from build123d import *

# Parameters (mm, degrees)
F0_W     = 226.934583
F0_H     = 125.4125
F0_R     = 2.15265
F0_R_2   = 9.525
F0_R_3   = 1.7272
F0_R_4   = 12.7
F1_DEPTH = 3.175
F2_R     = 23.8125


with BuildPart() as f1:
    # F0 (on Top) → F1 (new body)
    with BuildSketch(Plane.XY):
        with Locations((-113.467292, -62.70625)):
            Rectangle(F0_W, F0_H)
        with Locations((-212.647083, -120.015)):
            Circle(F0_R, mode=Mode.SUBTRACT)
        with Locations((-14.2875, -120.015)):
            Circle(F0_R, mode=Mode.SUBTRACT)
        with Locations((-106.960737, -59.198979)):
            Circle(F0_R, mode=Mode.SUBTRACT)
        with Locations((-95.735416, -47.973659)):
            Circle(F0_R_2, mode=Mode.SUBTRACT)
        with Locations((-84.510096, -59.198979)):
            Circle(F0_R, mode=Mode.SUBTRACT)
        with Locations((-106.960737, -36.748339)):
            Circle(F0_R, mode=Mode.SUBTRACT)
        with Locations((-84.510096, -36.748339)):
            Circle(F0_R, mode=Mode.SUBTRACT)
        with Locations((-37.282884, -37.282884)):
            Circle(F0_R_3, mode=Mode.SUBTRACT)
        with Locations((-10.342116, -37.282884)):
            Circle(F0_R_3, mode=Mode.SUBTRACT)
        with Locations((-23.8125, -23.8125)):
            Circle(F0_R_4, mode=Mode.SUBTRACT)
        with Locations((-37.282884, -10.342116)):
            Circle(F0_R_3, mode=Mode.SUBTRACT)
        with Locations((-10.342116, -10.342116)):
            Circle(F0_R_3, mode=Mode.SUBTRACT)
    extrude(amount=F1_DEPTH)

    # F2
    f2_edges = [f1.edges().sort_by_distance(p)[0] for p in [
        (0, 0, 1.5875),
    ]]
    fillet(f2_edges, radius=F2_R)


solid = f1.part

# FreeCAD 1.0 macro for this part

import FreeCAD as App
import Part
import Sketcher

V = App.Vector
Q = App.Units.Quantity


def edges_at(feature, points):
    """Names of the edges that pass closest to the given points."""
    edges = feature.Shape.Edges
    near = lambda p: min(range(len(edges)), key=lambda i: edges[i].distToShape(Part.Vertex(*p))[0])
    return sorted({f"Edge{near(p) + 1}" for p in points})

doc = App.newDocument("Part")
body = doc.addObject("PartDesign::Body", "Body")

# Sketch on XY plane
sketch1 = body.newObject("Sketcher::SketchObject", "Sketch")
sketch1.AttachmentSupport = (doc.getObject("XY_Plane"), [""])
sketch1.MapMode = "FlatFace"
sketch1.addGeometry(Part.LineSegment(V(-226.9, 0, 0), V(-226.9, -125.4, 0)), False)
sketch1.addGeometry(Part.LineSegment(V(-226.9, -125.4, 0), V(0, -125.4, 0)), False)
sketch1.addGeometry(Part.LineSegment(V(0, -125.4, 0), V(0, 0, 0)), False)
sketch1.addGeometry(Part.LineSegment(V(0, 0, 0), V(-226.9, 0, 0)), False)
sketch1.addGeometry(Part.Circle(V(-212.6, -120, 0), V(0, 0, 1), 2.2), False)
sketch1.addGeometry(Part.Circle(V(-14.3, -120, 0), V(0, 0, 1), 2.2), False)
sketch1.addGeometry(Part.Circle(V(-107, -59.2, 0), V(0, 0, 1), 2.2), False)
sketch1.addGeometry(Part.Circle(V(-84.5, -59.2, 0), V(0, 0, 1), 2.2), False)
sketch1.addGeometry(Part.Circle(V(-95.7, -48, 0), V(0, 0, 1), 9.5), False)
sketch1.addGeometry(Part.Circle(V(-37.3, -37.3, 0), V(0, 0, 1), 1.7), False)
sketch1.addGeometry(Part.Circle(V(-10.3, -37.3, 0), V(0, 0, 1), 1.7), False)
sketch1.addGeometry(Part.Circle(V(-107, -36.7, 0), V(0, 0, 1), 2.2), False)
sketch1.addGeometry(Part.Circle(V(-84.5, -36.7, 0), V(0, 0, 1), 2.2), False)
sketch1.addGeometry(Part.Circle(V(-23.8, -23.8, 0), V(0, 0, 1), 12.7), False)
sketch1.addGeometry(Part.Circle(V(-37.3, -10.3, 0), V(0, 0, 1), 1.7), False)
sketch1.addGeometry(Part.Circle(V(-10.3, -10.3, 0), V(0, 0, 1), 1.7), False)
sketch1.addConstraint(Sketcher.Constraint("Coincident", 0, 2, 1, 1))
sketch1.addConstraint(Sketcher.Constraint("Coincident", 1, 2, 2, 1))
sketch1.addConstraint(Sketcher.Constraint("Coincident", 2, 2, 3, 1))
sketch1.addConstraint(Sketcher.Constraint("Coincident", 3, 2, 0, 1))
sketch1.addConstraint(Sketcher.Constraint("Vertical", 0))
sketch1.addConstraint(Sketcher.Constraint("Horizontal", 1))
sketch1.addConstraint(Sketcher.Constraint("Vertical", 2))
sketch1.addConstraint(Sketcher.Constraint("Horizontal", 3))
sketch1.addConstraint(Sketcher.Constraint("Coincident", 2, 2, -1, 1))
sketch1.addConstraint(Sketcher.Constraint("Equal", 4, 5))
sketch1.addConstraint(Sketcher.Constraint("Equal", 5, 6))
sketch1.addConstraint(Sketcher.Constraint("Equal", 6, 7))
sketch1.addConstraint(Sketcher.Constraint("Equal", 9, 10))
sketch1.addConstraint(Sketcher.Constraint("Equal", 7, 11))
sketch1.addConstraint(Sketcher.Constraint("Equal", 11, 12))
sketch1.addConstraint(Sketcher.Constraint("Equal", 10, 14))
sketch1.addConstraint(Sketcher.Constraint("Equal", 14, 15))
sketch1.addConstraint(Sketcher.Constraint("Horizontal", 4, 3, 5, 3))
sketch1.addConstraint(Sketcher.Constraint("Horizontal", 6, 3, 7, 3))
sketch1.addConstraint(Sketcher.Constraint("Horizontal", 9, 3, 10, 3))
sketch1.addConstraint(Sketcher.Constraint("Horizontal", 11, 3, 12, 3))
sketch1.addConstraint(Sketcher.Constraint("Horizontal", 14, 3, 15, 3))
sketch1.addConstraint(Sketcher.Constraint("Vertical", 6, 3, 11, 3))
sketch1.addConstraint(Sketcher.Constraint("Vertical", 7, 3, 12, 3))
sketch1.addConstraint(Sketcher.Constraint("Vertical", 9, 3, 14, 3))
sketch1.addConstraint(Sketcher.Constraint("Vertical", 10, 3, 15, 3))
sketch1.addConstraint(Sketcher.Constraint("Diameter", 13, Q("1 in")))
sketch1.addConstraint(Sketcher.Constraint("Diameter", 8, Q("0.75 in")))
sketch1.addConstraint(Sketcher.Constraint("Diameter", 9, Q("0.136 in")))
sketch1.addConstraint(Sketcher.Constraint("DistanceY", 1, 2, 13, 3, Q("4 in")))
sketch1.addConstraint(Sketcher.Constraint("Diameter", 4, Q("0.1695 in")))
sketch1.addConstraint(Sketcher.Constraint("DistanceY", 0, 2, 0, 1, Q("4.9375 in")))
sketch1.addConstraint(Sketcher.Constraint("DistanceY", 4, 3, -1, 1, Q("4.725 in")))
sketch1.addConstraint(Sketcher.Constraint("DistanceX", 5, 3, -1, 1, Q("0.5625 in")))
sketch1.addConstraint(Sketcher.Constraint("DistanceX", 13, 3, -1, 1, Q("0.9375 in")))
sketch1.addConstraint(Sketcher.Constraint("DistanceX", 0, 2, 4, 3, Q("0.5625 in")))
sketch1.addConstraint(Sketcher.Constraint("DistanceX", 4, 3, 9, 3, 175.364199))
sketch1.addConstraint(Sketcher.Constraint("DistanceX", 8, 3, 10, 3, 85.3933))
sketch1.addConstraint(Sketcher.Constraint("DistanceX", 1, 1, 1, 2, 226.934583))
sketch1.addConstraint(Sketcher.Constraint("DistanceY", 6, 3, -1, 1, 59.198979))
sketch1.addConstraint(Sketcher.Constraint("DistanceY", 8, 3, -1, 1, 47.973659))
sketch1.addConstraint(Sketcher.Constraint("DistanceY", 11, 3, -1, 1, 36.748339))
sketch1.addConstraint(Sketcher.Constraint("DistanceX", 6, 3, 7, 3, 22.450641))
sketch1.addConstraint(Sketcher.Constraint("DistanceX", 8, 3, 7, 3, 11.22532))
sketch1.addConstraint(Sketcher.Constraint("DistanceX", 8, 3, 9, 3, 58.452532))
sketch1.addConstraint(Sketcher.Constraint("DistanceY", 9, 3, 14, 3, 26.940768))
sketch1.addConstraint(Sketcher.Constraint("DistanceY", 9, 3, -1, 1, 37.282884))
pad1 = body.newObject("PartDesign::Pad", "Pad")
pad1.Profile = sketch1
pad1.Length = Q("0.125 in")
doc.recompute()

fillet = body.newObject("PartDesign::Fillet", "Fillet")
fillet.Base = (pad1, edges_at(pad1, [(0, 0, 1.587)]))
fillet.Radius = Q("0.9375 in")

doc.recompute()
